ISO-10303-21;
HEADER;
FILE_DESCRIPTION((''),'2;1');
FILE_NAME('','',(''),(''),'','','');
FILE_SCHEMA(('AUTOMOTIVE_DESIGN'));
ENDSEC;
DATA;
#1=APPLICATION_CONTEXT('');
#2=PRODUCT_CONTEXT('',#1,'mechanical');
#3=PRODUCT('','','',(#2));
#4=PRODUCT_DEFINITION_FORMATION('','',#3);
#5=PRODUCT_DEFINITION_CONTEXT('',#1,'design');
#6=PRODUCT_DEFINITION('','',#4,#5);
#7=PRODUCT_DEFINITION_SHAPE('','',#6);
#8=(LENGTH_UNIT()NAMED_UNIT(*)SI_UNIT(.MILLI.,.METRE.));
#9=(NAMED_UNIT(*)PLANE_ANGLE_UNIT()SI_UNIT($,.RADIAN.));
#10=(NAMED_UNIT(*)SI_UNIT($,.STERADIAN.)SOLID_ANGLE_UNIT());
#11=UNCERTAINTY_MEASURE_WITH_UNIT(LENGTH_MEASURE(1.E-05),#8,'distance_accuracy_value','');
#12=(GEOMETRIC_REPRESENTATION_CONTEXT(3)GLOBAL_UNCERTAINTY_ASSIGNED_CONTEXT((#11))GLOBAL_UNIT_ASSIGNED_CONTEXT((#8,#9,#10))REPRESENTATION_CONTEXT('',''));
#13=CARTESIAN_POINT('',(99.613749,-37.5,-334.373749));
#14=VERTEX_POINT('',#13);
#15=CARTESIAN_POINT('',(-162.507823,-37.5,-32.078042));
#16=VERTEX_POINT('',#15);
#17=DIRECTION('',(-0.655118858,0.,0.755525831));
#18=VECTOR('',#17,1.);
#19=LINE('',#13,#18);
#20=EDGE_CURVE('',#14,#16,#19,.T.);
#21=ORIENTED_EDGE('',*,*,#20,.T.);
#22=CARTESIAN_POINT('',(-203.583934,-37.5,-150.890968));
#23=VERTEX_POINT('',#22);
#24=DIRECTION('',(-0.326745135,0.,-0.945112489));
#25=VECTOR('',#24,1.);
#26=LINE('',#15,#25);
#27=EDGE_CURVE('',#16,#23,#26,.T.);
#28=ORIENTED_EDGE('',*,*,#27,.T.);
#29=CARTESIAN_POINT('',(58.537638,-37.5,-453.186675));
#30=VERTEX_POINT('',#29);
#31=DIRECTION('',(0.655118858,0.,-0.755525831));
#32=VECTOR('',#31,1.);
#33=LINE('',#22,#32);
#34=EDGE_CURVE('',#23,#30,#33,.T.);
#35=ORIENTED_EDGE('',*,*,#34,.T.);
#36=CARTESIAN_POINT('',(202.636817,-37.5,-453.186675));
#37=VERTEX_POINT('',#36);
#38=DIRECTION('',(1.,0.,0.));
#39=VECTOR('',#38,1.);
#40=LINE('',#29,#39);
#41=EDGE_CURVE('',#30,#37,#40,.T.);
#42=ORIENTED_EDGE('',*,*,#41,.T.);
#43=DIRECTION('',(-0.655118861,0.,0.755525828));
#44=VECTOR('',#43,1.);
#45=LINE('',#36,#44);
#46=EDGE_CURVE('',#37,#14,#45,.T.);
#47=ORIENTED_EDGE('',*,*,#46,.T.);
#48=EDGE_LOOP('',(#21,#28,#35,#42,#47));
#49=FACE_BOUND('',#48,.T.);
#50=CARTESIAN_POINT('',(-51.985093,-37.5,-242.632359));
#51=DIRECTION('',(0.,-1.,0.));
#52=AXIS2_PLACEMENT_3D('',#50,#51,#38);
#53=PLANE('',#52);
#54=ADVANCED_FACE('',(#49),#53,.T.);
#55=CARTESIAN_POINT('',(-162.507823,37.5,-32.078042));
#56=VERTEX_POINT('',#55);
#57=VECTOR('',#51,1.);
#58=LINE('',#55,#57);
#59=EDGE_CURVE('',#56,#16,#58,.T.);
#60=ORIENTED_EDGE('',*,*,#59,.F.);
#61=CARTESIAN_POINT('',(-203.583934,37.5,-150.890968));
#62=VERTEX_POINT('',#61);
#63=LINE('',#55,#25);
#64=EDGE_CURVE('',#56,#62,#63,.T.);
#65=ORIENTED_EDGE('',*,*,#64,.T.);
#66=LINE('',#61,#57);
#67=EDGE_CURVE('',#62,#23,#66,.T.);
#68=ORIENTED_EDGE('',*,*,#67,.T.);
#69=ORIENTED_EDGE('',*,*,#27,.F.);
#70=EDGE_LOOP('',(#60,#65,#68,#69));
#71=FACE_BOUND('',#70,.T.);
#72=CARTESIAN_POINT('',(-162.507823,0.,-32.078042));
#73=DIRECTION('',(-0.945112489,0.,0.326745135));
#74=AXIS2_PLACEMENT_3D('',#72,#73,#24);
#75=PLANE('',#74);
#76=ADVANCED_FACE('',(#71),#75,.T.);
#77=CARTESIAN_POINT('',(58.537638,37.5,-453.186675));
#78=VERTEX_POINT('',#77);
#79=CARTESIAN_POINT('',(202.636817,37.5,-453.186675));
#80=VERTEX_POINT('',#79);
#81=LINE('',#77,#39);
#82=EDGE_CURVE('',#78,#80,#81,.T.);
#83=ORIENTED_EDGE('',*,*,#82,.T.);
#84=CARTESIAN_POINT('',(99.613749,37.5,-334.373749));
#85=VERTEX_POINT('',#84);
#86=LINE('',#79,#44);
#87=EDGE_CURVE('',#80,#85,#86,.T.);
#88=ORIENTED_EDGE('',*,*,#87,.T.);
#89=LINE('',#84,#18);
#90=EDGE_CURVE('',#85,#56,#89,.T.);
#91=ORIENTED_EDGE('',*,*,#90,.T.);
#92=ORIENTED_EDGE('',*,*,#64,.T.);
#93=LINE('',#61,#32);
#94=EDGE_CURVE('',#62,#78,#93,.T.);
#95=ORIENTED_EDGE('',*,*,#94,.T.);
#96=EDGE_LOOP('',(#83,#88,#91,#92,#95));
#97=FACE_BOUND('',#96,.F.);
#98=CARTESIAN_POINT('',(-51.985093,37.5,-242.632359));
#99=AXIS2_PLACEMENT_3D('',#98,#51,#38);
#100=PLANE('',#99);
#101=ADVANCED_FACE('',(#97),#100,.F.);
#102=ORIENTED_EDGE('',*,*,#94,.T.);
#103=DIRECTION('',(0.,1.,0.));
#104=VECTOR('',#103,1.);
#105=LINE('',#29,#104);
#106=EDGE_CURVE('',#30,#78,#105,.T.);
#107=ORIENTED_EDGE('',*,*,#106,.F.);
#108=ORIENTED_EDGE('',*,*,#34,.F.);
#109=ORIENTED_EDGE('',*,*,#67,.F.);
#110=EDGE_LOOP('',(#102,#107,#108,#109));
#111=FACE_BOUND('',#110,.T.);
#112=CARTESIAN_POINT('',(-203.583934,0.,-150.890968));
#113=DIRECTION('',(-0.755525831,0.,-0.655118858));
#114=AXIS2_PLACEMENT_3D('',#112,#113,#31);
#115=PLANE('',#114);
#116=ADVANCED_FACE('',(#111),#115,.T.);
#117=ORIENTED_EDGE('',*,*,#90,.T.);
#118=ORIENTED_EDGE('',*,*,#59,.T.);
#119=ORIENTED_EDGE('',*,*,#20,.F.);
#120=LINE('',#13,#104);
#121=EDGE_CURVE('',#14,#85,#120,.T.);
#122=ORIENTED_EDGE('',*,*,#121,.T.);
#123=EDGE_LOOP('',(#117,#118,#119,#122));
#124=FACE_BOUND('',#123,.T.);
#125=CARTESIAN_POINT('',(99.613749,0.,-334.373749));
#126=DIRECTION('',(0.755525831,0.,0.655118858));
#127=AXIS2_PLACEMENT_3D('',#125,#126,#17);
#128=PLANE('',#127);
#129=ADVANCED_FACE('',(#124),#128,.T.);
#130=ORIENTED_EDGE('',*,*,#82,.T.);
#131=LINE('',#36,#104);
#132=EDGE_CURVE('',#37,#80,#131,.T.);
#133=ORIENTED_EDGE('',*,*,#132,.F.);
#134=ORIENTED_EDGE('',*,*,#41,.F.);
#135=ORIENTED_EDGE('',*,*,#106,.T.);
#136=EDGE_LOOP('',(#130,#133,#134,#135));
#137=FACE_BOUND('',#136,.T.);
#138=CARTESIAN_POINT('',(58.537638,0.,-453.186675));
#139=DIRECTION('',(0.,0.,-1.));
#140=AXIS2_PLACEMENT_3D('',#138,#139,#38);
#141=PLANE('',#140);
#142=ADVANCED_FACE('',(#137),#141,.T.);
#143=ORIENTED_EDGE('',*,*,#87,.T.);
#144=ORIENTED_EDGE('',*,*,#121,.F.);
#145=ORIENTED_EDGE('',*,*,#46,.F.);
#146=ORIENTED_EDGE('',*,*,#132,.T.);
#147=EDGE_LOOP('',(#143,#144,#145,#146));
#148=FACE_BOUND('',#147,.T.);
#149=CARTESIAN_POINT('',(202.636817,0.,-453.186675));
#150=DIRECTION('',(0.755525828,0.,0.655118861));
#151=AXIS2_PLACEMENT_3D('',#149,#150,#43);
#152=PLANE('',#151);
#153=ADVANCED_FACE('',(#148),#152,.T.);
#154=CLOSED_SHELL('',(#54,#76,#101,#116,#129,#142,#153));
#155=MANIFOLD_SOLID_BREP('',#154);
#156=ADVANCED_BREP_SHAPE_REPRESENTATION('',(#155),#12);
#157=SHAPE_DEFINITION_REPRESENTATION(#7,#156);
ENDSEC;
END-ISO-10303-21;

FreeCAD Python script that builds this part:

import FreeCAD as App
import Part
import Sketcher
Q = App.Units.Quantity

doc = App.newDocument("Part")
params = doc.addObject("Spreadsheet::Sheet", "Params")
for row, (alias, value) in enumerate([
    ("pad1_length", "75 mm"),
], start=1):
    params.set(f"A{row}", alias)
    params.set(f"B{row}", "=" + value)
    params.setAlias(f"B{row}", alias)

body = doc.addObject("PartDesign::Body", "Body")

sketch1 = body.newObject("Sketcher::SketchObject", "Sketch")
sketch1.AttachmentSupport = (doc.getObject("XZ_Plane"), [""])
sketch1.MapMode = "FlatFace"
sketch1.addGeometry([
    Part.LineSegment(App.Vector(100, -334, 0), App.Vector(-163, -32, 0)),
    Part.LineSegment(App.Vector(-163, -32, 0), App.Vector(-204, -151, 0)),
    Part.LineSegment(App.Vector(-204, -151, 0), App.Vector(59, -453, 0)),
    Part.LineSegment(App.Vector(59, -453, 0), App.Vector(203, -453, 0)),
    Part.LineSegment(App.Vector(203, -453, 0), App.Vector(100, -334, 0)),
], False)
sketch1.addConstraint([
    Sketcher.Constraint("Coincident", 0, 2, 1, 1),
    Sketcher.Constraint("Coincident", 1, 2, 2, 1),
    Sketcher.Constraint("Coincident", 2, 2, 3, 1),
    Sketcher.Constraint("Coincident", 3, 2, 4, 1),
    Sketcher.Constraint("Coincident", 4, 2, 0, 1),
    Sketcher.Constraint("Horizontal", 3),
    Sketcher.Constraint("Parallel", 0, 2),
    Sketcher.Constraint("Parallel", 2, 4),
    Sketcher.Constraint("Equal", 0, 2),
    Sketcher.Constraint("Distance", 0, Q("400.113 mm")),
    Sketcher.Constraint("Distance", 1, Q("125.713 mm")),
    Sketcher.Constraint("DistanceX", 3, 1, 3, 2, Q("144.099179 mm")),
    Sketcher.Constraint("Distance", 4, Q("157.258589 mm")),
    Sketcher.Constraint("DistanceX", -1, 1, 4, 2, Q("99.613749 mm")),
    Sketcher.Constraint("DistanceY", 4, 2, -1, 1, Q("334.373749 mm")),
])
pad1 = body.newObject("PartDesign::Pad", "Pad")
pad1.Profile = sketch1
pad1.setExpression("Length", "Params.pad1_length")
pad1.Midplane = True

doc.recompute()
